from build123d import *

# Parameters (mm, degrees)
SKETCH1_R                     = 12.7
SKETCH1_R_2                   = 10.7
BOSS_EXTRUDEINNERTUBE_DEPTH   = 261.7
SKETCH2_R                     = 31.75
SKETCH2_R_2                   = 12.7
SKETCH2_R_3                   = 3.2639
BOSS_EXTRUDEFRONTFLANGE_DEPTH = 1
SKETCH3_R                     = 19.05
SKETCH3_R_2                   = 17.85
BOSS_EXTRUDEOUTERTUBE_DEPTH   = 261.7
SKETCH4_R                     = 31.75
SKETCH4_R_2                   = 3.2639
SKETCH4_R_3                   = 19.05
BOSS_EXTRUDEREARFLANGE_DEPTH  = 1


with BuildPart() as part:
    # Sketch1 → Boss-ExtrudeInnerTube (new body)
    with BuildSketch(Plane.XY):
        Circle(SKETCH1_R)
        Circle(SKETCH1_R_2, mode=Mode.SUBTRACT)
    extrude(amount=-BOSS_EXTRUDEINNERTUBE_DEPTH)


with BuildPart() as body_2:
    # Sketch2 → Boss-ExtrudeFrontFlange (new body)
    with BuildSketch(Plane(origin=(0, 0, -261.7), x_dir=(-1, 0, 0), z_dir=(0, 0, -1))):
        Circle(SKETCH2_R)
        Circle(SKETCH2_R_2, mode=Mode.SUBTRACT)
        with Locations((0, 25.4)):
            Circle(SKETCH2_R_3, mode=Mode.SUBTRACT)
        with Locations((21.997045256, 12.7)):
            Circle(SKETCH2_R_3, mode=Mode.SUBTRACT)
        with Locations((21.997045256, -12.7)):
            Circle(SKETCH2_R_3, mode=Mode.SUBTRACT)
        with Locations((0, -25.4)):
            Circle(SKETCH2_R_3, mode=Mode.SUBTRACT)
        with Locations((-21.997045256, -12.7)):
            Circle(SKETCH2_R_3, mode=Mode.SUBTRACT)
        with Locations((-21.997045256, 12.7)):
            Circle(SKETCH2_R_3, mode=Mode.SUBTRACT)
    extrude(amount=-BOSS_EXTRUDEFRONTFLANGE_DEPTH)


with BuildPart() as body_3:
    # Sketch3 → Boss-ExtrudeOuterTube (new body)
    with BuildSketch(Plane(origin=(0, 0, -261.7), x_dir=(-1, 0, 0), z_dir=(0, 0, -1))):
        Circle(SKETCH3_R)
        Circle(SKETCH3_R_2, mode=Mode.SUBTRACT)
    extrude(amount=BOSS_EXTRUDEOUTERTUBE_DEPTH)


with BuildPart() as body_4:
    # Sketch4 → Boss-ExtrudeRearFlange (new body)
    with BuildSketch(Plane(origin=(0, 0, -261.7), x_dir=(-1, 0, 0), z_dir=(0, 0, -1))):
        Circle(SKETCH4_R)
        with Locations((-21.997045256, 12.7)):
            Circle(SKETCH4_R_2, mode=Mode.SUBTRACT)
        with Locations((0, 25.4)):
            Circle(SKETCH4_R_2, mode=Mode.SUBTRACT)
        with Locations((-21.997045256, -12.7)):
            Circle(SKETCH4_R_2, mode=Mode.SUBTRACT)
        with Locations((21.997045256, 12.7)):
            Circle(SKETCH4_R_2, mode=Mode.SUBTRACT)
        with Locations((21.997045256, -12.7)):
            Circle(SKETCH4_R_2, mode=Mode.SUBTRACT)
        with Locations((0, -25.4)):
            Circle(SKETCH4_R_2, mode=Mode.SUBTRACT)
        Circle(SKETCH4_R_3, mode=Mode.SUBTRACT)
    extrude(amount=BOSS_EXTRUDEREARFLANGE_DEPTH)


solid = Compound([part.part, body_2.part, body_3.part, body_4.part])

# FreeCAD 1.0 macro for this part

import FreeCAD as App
import Part
import Sketcher
from FreeCAD import Vector

doc = App.newDocument("Part")
body = doc.addObject("PartDesign::Body", "Body")

sketch1 = doc.addObject("Sketcher::SketchObject", "Sketch")
body.addObject(sketch1)
sketch1.AttachmentSupport = (doc.XY_Plane, [""])
sketch1.MapMode = "FlatFace"
sketch1.addGeometry([
    Part.Circle(Vector(0, 0, 0), Vector(0, 0, 1), 13),
    Part.Circle(Vector(0, 0, 0), Vector(0, 0, 1), 11),
], False)
sketch1.addConstraint([
    Sketcher.Constraint("Coincident", 0, 3, -1, 1),
    Sketcher.Constraint("Coincident", 1, 3, -1, 1),
    Sketcher.Constraint("Diameter", 0, 25.4),
    Sketcher.Constraint("Diameter", 1, 21.4),
])
pad1 = doc.addObject("PartDesign::Pad", "Pad")
body.addObject(pad1)
pad1.Profile = sketch1
pad1.Length = 261.7
pad1.Reversed = True
body2 = doc.addObject("PartDesign::Body", "Body001")

sketch2 = doc.addObject("Sketcher::SketchObject", "Sketch001")
body2.addObject(sketch2)
sketch2.AttachmentSupport = (doc.getObject("XY_Plane001"), [""])
sketch2.MapMode = "FlatFace"
sketch2.AttachmentOffset = App.Placement(Vector(0, 0, -261.7), App.Rotation())
sketch2.addGeometry([
    Part.Circle(Vector(0, 0, 0), Vector(0, 0, 1), 31.8),
    Part.Circle(Vector(22, -12.7, 0), Vector(0, 0, 1), 3.3),
    Part.Circle(Vector(0, -25.4, 0), Vector(0, 0, 1), 3.3),
    Part.Circle(Vector(-22, -12.7, 0), Vector(0, 0, 1), 3.3),
    Part.Circle(Vector(22, 12.7, 0), Vector(0, 0, 1), 3.3),
    Part.Circle(Vector(0, 0, 0), Vector(0, 0, 1), 12.7),
    Part.Circle(Vector(-22, 12.7, 0), Vector(0, 0, 1), 3.3),
    Part.Circle(Vector(0, 25.4, 0), Vector(0, 0, 1), 3.3),
], False)
sketch2.addConstraint([
    Sketcher.Constraint("Coincident", 0, 3, -1, 1),
    Sketcher.Constraint("Coincident", 5, 3, -1, 1),
    Sketcher.Constraint("Equal", 1, 2),
    Sketcher.Constraint("Equal", 2, 3),
    Sketcher.Constraint("Equal", 3, 4),
    Sketcher.Constraint("Equal", 4, 6),
    Sketcher.Constraint("Equal", 6, 7),
    Sketcher.Constraint("Symmetric", 3, 3, 4, 3, -1, 1),
    Sketcher.Constraint("Symmetric", 1, 3, 6, 3, -1, 1),
    Sketcher.Constraint("Symmetric", 2, 3, 7, 3, -1, 1),
    Sketcher.Constraint("Symmetric", 1, 3, 3, 3, -2),
    Sketcher.Constraint("PointOnObject", 2, 3, -2),
    Sketcher.Constraint("Diameter", 0, 63.5),
    Sketcher.Constraint("Diameter", 5, 25.4),
    Sketcher.Constraint("Diameter", 1, 6.5278),
    Sketcher.Constraint("DistanceY", 1, 3, -1, 1, 12.7),
    Sketcher.Constraint("DistanceY", 2, 3, -1, 1, 25.4),
    Sketcher.Constraint("DistanceX", 3, 3, 1, 3, 43.994091),
])
pad2 = doc.addObject("PartDesign::Pad", "Pad001")
body2.addObject(pad2)
pad2.Profile = sketch2
pad2.Length = 1
body3 = doc.addObject("PartDesign::Body", "Body002")

sketch3 = doc.addObject("Sketcher::SketchObject", "Sketch002")
body3.addObject(sketch3)
sketch3.AttachmentSupport = (doc.getObject("XY_Plane002"), [""])
sketch3.MapMode = "FlatFace"
sketch3.AttachmentOffset = App.Placement(Vector(0, 0, -261.7), App.Rotation())
sketch3.addGeometry([
    Part.Circle(Vector(0, 0, 0), Vector(0, 0, 1), 19),
    Part.Circle(Vector(0, 0, 0), Vector(0, 0, 1), 18),
], False)
sketch3.addConstraint([
    Sketcher.Constraint("Coincident", 0, 3, -1, 1),
    Sketcher.Constraint("Coincident", 1, 3, -1, 1),
    Sketcher.Constraint("Diameter", 0, 38.1),
    Sketcher.Constraint("Diameter", 1, 35.7),
])
pad3 = doc.addObject("PartDesign::Pad", "Pad002")
body3.addObject(pad3)
pad3.Profile = sketch3
pad3.Length = 261.7
pad3.Reversed = True
body4 = doc.addObject("PartDesign::Body", "Body003")

sketch4 = doc.addObject("Sketcher::SketchObject", "Sketch003")
body4.addObject(sketch4)
sketch4.AttachmentSupport = (doc.getObject("XY_Plane003"), [""])
sketch4.MapMode = "FlatFace"
sketch4.AttachmentOffset = App.Placement(Vector(0, 0, -261.7), App.Rotation())
sketch4.addGeometry([
    Part.Circle(Vector(0, 0, 0), Vector(0, 0, 1), 31.8),
    Part.Circle(Vector(22, -12.7, 0), Vector(0, 0, 1), 3.3),
    Part.Circle(Vector(0, -25.4, 0), Vector(0, 0, 1), 3.3),
    Part.Circle(Vector(-22, -12.7, 0), Vector(0, 0, 1), 3.3),
    Part.Circle(Vector(22, 12.7, 0), Vector(0, 0, 1), 3.3),
    Part.Circle(Vector(0, 0, 0), Vector(0, 0, 1), 19.1),
    Part.Circle(Vector(-22, 12.7, 0), Vector(0, 0, 1), 3.3),
    Part.Circle(Vector(0, 25.4, 0), Vector(0, 0, 1), 3.3),
], False)
sketch4.addConstraint([
    Sketcher.Constraint("Coincident", 0, 3, -1, 1),
    Sketcher.Constraint("Coincident", 5, 3, -1, 1),
    Sketcher.Constraint("Equal", 1, 2),
    Sketcher.Constraint("Equal", 2, 3),
    Sketcher.Constraint("Equal", 3, 4),
    Sketcher.Constraint("Equal", 4, 6),
    Sketcher.Constraint("Equal", 6, 7),
    Sketcher.Constraint("Symmetric", 3, 3, 4, 3, -1, 1),
    Sketcher.Constraint("Symmetric", 1, 3, 6, 3, -1, 1),
    Sketcher.Constraint("Symmetric", 2, 3, 7, 3, -1, 1),
    Sketcher.Constraint("Symmetric", 1, 3, 3, 3, -2),
    Sketcher.Constraint("PointOnObject", 2, 3, -2),
    Sketcher.Constraint("Diameter", 0, 63.5),
    Sketcher.Constraint("Diameter", 5, 38.1),
    Sketcher.Constraint("Diameter", 1, 6.5278),
    Sketcher.Constraint("DistanceY", 1, 3, -1, 1, 12.7),
    Sketcher.Constraint("DistanceY", 2, 3, -1, 1, 25.4),
    Sketcher.Constraint("DistanceX", 3, 3, 1, 3, 43.994091),
])
pad4 = doc.addObject("PartDesign::Pad", "Pad003")
body4.addObject(pad4)
pad4.Profile = sketch4
pad4.Length = 1
pad4.Reversed = True

doc.recompute()
